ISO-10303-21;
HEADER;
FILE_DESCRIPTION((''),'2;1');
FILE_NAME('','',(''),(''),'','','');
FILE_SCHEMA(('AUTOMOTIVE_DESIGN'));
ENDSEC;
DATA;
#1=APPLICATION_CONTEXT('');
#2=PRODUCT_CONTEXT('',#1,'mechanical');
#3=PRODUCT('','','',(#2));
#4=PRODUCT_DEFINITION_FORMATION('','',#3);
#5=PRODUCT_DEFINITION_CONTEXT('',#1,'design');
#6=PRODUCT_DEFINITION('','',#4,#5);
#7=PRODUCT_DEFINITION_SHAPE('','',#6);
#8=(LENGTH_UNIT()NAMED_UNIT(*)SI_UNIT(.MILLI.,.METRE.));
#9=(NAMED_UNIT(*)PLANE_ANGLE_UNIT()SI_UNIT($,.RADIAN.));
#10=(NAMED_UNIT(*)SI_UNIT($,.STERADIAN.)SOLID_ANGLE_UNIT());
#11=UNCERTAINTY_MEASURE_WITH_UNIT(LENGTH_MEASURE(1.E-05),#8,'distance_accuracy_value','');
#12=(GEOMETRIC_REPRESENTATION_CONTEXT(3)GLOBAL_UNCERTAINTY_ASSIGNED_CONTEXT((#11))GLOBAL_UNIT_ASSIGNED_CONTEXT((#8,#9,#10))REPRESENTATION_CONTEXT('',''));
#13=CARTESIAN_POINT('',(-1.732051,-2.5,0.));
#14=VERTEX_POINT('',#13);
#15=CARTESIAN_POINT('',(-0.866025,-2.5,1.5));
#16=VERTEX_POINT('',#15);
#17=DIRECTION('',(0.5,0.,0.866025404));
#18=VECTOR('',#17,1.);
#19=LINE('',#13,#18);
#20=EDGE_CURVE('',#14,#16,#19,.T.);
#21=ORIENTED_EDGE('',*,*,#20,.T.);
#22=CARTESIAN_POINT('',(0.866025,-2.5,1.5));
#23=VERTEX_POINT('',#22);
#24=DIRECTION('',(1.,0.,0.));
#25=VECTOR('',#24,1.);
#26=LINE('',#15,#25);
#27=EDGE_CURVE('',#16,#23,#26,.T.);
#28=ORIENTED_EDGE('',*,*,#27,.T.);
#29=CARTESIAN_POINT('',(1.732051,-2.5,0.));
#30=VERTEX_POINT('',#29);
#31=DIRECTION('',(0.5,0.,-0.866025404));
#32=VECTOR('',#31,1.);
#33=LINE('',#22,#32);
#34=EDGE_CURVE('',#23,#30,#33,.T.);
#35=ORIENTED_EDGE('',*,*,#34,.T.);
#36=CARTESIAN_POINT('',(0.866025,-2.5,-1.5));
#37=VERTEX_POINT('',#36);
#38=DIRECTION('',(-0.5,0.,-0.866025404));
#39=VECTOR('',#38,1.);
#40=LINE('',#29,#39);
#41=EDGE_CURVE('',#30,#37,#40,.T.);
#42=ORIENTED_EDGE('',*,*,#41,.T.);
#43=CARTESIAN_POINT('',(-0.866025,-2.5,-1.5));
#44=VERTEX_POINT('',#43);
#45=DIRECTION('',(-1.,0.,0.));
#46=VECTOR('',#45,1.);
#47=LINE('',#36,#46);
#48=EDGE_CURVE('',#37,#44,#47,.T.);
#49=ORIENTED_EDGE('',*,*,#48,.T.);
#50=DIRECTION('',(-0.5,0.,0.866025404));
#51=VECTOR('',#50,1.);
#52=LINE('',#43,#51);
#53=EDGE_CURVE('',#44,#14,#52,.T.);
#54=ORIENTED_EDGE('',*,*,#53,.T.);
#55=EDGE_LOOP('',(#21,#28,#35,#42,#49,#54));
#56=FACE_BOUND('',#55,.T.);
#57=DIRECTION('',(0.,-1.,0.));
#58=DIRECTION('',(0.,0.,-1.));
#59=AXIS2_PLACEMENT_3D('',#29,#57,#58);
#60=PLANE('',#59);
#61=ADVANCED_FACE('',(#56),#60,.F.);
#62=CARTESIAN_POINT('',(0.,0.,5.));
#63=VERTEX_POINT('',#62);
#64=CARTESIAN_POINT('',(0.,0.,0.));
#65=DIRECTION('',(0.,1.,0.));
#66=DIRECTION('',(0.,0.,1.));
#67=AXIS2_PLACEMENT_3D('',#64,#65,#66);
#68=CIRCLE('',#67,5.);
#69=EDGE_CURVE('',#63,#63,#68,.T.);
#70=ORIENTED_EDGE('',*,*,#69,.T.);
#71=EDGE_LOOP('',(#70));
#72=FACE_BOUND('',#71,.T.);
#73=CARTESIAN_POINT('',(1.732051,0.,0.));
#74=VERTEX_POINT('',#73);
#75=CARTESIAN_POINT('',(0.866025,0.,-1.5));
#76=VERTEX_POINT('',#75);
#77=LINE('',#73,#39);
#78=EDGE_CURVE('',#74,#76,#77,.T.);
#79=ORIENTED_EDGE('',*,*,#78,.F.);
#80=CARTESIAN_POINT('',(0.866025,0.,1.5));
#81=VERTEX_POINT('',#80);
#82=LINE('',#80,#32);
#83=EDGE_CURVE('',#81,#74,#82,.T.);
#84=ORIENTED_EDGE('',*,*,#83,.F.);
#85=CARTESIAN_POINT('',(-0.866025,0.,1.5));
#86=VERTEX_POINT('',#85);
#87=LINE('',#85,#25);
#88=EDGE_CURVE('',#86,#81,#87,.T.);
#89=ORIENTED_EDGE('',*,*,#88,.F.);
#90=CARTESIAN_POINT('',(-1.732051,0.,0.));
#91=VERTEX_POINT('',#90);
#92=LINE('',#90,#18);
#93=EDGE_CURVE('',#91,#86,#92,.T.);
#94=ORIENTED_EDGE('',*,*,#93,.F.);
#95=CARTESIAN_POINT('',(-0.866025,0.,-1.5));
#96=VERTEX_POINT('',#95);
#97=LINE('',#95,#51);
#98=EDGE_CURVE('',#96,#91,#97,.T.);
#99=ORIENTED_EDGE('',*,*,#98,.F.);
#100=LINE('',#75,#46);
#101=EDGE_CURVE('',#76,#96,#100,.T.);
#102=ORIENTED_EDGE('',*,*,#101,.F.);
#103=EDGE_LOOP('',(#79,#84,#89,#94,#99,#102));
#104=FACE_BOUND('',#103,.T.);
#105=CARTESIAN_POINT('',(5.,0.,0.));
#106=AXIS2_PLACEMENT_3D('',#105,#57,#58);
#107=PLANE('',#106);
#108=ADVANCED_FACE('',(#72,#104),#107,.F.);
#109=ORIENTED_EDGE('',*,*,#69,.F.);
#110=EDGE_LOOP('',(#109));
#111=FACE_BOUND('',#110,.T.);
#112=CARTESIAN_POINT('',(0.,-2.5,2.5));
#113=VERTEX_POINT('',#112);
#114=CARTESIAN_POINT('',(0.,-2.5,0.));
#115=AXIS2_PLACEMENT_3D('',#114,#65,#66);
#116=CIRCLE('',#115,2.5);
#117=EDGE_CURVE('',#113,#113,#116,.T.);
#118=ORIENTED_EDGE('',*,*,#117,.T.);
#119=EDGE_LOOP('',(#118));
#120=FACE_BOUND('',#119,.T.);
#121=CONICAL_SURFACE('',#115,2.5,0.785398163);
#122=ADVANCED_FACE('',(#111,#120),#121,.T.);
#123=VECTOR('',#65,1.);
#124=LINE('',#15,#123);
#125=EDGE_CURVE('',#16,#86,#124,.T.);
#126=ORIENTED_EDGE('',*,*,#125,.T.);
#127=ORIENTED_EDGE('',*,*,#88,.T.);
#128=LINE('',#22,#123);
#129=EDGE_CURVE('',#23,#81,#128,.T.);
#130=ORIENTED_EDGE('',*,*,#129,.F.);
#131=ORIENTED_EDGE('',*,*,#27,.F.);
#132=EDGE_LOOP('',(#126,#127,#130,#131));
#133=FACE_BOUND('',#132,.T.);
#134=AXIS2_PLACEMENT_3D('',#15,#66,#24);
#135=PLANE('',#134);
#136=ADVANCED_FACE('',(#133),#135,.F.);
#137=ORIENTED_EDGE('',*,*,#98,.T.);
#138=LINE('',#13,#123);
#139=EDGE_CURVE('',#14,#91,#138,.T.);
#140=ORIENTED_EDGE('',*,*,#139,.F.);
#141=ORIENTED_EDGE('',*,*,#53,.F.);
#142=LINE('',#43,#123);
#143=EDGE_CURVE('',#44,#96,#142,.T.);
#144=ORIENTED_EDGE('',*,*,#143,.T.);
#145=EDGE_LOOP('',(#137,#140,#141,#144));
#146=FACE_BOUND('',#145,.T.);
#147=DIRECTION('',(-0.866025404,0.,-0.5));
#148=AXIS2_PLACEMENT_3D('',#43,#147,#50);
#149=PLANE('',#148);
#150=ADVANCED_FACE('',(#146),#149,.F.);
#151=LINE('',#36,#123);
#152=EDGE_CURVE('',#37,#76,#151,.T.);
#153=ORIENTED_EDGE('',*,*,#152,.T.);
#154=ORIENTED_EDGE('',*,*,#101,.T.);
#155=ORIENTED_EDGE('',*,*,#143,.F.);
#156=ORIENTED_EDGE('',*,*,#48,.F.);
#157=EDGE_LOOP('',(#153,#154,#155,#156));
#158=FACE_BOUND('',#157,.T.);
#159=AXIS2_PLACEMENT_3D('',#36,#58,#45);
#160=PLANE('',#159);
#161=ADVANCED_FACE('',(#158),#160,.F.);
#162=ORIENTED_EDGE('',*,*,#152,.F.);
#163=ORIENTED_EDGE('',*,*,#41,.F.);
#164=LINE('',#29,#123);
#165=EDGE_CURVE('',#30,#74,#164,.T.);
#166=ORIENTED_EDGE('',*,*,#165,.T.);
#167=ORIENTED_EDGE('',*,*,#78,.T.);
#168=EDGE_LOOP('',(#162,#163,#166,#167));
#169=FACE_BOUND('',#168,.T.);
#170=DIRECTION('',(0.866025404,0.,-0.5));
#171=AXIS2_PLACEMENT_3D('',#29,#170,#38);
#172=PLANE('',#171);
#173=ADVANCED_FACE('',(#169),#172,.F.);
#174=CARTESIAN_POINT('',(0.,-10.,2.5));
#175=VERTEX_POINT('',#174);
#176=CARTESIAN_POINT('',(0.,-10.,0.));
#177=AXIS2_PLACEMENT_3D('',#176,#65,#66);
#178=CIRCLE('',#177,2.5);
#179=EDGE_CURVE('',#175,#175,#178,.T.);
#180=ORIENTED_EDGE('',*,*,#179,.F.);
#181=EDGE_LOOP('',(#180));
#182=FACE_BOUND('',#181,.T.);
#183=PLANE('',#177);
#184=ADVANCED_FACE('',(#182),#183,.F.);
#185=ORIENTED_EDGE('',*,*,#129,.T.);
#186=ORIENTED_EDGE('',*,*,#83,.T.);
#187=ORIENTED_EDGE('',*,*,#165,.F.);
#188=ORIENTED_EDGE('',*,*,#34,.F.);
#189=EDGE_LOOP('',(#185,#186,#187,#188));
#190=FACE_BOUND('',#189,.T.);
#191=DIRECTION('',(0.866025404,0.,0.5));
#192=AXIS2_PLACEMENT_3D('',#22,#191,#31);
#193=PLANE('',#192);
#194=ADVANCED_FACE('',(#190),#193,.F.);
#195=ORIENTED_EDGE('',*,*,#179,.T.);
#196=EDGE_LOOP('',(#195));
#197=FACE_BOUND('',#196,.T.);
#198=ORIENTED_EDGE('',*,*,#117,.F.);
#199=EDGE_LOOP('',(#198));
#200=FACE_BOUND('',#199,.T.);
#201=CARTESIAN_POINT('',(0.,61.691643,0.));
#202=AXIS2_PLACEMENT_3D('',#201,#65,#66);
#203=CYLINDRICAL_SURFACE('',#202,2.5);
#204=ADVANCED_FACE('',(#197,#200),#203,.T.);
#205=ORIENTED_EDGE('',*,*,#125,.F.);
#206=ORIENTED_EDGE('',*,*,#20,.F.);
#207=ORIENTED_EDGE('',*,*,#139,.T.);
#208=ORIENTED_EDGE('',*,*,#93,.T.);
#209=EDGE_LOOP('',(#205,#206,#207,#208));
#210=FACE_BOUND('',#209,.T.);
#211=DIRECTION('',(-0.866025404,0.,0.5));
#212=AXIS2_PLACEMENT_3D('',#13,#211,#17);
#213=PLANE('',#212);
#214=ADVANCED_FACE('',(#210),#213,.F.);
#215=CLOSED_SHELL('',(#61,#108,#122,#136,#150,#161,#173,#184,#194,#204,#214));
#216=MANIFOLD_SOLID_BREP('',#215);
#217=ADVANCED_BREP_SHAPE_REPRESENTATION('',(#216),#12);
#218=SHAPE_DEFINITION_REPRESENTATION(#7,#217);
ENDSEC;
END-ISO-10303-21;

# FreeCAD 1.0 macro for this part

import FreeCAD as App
import Part
import Sketcher
from FreeCAD import Vector
Q = App.Units.Quantity


def add_polygon(sketch, points):
    """Adds a closed chain of lines whose ends are joined by coincident constraints."""
    first, n = sketch.GeometryCount, len(points)
    for a, b in zip(points, points[1:] + points[:1]):
        sketch.addGeometry(Part.LineSegment(App.Vector(*a, 0), App.Vector(*b, 0)), False)
    for i in range(n):
        sketch.addConstraint(Sketcher.Constraint("Coincident", first + i, 2, first + (i + 1) % n, 1))

doc = App.newDocument("Part")
params = doc.addObject("Spreadsheet::Sheet", "Params")
for row, (alias, value) in enumerate([
    ("sketch1_width", "5 mm"),
    ("sketch1_height", "10 mm"),
    ("sketch1_width2", "2.5 mm"),
    ("revolution_angle", "360 deg"),
    ("pocket1_length", "2.5 mm"),
], start=1):
    params.set(f"A{row}", alias)
    params.set(f"B{row}", "=" + value)
    params.setAlias(f"B{row}", alias)

body = doc.addObject("PartDesign::Body", "Body")

sketch1 = body.newObject("Sketcher::SketchObject", "Sketch")
sketch1.AttachmentSupport = (doc.getObject("XY_Plane"), [""])
sketch1.MapMode = "FlatFace"
add_polygon(sketch1, [(0, -10), (2.5, -10), (2.5, -2.5), (5, 0), (0, 0)])
sketch1.addConstraint(Sketcher.Constraint("Horizontal", 0))
sketch1.addConstraint(Sketcher.Constraint("Vertical", 1))
sketch1.addConstraint(Sketcher.Constraint("Horizontal", 3))
sketch1.addConstraint(Sketcher.Constraint("Vertical", 4))
sketch1.addConstraint(Sketcher.Constraint("Coincident", 3, 2, -1, 1))
sketch1.addConstraint(Sketcher.Constraint("DistanceX", 3, 2, 3, 1, Q("5 mm")))
sketch1.addConstraint(Sketcher.Constraint("DistanceY", 4, 2, 4, 1, Q("10 mm")))
sketch1.addConstraint(Sketcher.Constraint("Angle", 2, Q("45 deg")))
sketch1.addConstraint(Sketcher.Constraint("DistanceX", 0, 1, 0, 2, Q("2.5 mm")))
sketch1.setExpression("Constraints[10]", "Params.sketch1_width")
sketch1.setExpression("Constraints[11]", "Params.sketch1_height")
sketch1.setExpression("Constraints[13]", "Params.sketch1_width2")
revolution = body.newObject("PartDesign::Revolution", "Revolution")
revolution.Profile = sketch1
revolution.ReferenceAxis = (sketch1, ["V_Axis"])
revolution.setExpression("Angle", "Params.revolution_angle")

sketch2 = body.newObject("Sketcher::SketchObject", "Sketch001")
sketch2.AttachmentSupport = (doc.getObject("XZ_Plane"), [""])
sketch2.MapMode = "FlatFace"
add_polygon(sketch2, [(0.866025, -1.5), (-0.866025, -1.5), (-1.732051, 0), (-0.866025, 1.5), (0.866025, 1.5), (1.732051, 0)])
sketch2.addConstraint(Sketcher.Constraint("Horizontal", 0))
sketch2.addConstraint(Sketcher.Constraint("Horizontal", 3))
sketch2.addConstraint(Sketcher.Constraint("Symmetric", 0, 2, 3, 2, -1, 1))
sketch2.addConstraint(Sketcher.Constraint("Symmetric", 1, 2, 4, 2, -1, 1))
sketch2.addConstraint(Sketcher.Constraint("PointOnObject", 1, 2, -1))
sketch2.addConstraint(Sketcher.Constraint("Parallel", 2, 5))
sketch2.addConstraint(Sketcher.Constraint("Vertical", 0, 2, 2, 2))
sketch2.addConstraint(Sketcher.Constraint("Angle", 1, Q("120 deg")))
sketch2.addConstraint(Sketcher.Constraint("DistanceY", 0, 2, 2, 2, Q("3 mm")))
sketch2.addConstraint(Sketcher.Constraint("DistanceX", 0, 2, 0, 1, Q("1.732051 mm")))
pocket1 = body.newObject("PartDesign::Pocket", "Pocket")
pocket1.Profile = sketch2
pocket1.setExpression("Length", "Params.pocket1_length")
pocket1.Reversed = True

doc.recompute()
